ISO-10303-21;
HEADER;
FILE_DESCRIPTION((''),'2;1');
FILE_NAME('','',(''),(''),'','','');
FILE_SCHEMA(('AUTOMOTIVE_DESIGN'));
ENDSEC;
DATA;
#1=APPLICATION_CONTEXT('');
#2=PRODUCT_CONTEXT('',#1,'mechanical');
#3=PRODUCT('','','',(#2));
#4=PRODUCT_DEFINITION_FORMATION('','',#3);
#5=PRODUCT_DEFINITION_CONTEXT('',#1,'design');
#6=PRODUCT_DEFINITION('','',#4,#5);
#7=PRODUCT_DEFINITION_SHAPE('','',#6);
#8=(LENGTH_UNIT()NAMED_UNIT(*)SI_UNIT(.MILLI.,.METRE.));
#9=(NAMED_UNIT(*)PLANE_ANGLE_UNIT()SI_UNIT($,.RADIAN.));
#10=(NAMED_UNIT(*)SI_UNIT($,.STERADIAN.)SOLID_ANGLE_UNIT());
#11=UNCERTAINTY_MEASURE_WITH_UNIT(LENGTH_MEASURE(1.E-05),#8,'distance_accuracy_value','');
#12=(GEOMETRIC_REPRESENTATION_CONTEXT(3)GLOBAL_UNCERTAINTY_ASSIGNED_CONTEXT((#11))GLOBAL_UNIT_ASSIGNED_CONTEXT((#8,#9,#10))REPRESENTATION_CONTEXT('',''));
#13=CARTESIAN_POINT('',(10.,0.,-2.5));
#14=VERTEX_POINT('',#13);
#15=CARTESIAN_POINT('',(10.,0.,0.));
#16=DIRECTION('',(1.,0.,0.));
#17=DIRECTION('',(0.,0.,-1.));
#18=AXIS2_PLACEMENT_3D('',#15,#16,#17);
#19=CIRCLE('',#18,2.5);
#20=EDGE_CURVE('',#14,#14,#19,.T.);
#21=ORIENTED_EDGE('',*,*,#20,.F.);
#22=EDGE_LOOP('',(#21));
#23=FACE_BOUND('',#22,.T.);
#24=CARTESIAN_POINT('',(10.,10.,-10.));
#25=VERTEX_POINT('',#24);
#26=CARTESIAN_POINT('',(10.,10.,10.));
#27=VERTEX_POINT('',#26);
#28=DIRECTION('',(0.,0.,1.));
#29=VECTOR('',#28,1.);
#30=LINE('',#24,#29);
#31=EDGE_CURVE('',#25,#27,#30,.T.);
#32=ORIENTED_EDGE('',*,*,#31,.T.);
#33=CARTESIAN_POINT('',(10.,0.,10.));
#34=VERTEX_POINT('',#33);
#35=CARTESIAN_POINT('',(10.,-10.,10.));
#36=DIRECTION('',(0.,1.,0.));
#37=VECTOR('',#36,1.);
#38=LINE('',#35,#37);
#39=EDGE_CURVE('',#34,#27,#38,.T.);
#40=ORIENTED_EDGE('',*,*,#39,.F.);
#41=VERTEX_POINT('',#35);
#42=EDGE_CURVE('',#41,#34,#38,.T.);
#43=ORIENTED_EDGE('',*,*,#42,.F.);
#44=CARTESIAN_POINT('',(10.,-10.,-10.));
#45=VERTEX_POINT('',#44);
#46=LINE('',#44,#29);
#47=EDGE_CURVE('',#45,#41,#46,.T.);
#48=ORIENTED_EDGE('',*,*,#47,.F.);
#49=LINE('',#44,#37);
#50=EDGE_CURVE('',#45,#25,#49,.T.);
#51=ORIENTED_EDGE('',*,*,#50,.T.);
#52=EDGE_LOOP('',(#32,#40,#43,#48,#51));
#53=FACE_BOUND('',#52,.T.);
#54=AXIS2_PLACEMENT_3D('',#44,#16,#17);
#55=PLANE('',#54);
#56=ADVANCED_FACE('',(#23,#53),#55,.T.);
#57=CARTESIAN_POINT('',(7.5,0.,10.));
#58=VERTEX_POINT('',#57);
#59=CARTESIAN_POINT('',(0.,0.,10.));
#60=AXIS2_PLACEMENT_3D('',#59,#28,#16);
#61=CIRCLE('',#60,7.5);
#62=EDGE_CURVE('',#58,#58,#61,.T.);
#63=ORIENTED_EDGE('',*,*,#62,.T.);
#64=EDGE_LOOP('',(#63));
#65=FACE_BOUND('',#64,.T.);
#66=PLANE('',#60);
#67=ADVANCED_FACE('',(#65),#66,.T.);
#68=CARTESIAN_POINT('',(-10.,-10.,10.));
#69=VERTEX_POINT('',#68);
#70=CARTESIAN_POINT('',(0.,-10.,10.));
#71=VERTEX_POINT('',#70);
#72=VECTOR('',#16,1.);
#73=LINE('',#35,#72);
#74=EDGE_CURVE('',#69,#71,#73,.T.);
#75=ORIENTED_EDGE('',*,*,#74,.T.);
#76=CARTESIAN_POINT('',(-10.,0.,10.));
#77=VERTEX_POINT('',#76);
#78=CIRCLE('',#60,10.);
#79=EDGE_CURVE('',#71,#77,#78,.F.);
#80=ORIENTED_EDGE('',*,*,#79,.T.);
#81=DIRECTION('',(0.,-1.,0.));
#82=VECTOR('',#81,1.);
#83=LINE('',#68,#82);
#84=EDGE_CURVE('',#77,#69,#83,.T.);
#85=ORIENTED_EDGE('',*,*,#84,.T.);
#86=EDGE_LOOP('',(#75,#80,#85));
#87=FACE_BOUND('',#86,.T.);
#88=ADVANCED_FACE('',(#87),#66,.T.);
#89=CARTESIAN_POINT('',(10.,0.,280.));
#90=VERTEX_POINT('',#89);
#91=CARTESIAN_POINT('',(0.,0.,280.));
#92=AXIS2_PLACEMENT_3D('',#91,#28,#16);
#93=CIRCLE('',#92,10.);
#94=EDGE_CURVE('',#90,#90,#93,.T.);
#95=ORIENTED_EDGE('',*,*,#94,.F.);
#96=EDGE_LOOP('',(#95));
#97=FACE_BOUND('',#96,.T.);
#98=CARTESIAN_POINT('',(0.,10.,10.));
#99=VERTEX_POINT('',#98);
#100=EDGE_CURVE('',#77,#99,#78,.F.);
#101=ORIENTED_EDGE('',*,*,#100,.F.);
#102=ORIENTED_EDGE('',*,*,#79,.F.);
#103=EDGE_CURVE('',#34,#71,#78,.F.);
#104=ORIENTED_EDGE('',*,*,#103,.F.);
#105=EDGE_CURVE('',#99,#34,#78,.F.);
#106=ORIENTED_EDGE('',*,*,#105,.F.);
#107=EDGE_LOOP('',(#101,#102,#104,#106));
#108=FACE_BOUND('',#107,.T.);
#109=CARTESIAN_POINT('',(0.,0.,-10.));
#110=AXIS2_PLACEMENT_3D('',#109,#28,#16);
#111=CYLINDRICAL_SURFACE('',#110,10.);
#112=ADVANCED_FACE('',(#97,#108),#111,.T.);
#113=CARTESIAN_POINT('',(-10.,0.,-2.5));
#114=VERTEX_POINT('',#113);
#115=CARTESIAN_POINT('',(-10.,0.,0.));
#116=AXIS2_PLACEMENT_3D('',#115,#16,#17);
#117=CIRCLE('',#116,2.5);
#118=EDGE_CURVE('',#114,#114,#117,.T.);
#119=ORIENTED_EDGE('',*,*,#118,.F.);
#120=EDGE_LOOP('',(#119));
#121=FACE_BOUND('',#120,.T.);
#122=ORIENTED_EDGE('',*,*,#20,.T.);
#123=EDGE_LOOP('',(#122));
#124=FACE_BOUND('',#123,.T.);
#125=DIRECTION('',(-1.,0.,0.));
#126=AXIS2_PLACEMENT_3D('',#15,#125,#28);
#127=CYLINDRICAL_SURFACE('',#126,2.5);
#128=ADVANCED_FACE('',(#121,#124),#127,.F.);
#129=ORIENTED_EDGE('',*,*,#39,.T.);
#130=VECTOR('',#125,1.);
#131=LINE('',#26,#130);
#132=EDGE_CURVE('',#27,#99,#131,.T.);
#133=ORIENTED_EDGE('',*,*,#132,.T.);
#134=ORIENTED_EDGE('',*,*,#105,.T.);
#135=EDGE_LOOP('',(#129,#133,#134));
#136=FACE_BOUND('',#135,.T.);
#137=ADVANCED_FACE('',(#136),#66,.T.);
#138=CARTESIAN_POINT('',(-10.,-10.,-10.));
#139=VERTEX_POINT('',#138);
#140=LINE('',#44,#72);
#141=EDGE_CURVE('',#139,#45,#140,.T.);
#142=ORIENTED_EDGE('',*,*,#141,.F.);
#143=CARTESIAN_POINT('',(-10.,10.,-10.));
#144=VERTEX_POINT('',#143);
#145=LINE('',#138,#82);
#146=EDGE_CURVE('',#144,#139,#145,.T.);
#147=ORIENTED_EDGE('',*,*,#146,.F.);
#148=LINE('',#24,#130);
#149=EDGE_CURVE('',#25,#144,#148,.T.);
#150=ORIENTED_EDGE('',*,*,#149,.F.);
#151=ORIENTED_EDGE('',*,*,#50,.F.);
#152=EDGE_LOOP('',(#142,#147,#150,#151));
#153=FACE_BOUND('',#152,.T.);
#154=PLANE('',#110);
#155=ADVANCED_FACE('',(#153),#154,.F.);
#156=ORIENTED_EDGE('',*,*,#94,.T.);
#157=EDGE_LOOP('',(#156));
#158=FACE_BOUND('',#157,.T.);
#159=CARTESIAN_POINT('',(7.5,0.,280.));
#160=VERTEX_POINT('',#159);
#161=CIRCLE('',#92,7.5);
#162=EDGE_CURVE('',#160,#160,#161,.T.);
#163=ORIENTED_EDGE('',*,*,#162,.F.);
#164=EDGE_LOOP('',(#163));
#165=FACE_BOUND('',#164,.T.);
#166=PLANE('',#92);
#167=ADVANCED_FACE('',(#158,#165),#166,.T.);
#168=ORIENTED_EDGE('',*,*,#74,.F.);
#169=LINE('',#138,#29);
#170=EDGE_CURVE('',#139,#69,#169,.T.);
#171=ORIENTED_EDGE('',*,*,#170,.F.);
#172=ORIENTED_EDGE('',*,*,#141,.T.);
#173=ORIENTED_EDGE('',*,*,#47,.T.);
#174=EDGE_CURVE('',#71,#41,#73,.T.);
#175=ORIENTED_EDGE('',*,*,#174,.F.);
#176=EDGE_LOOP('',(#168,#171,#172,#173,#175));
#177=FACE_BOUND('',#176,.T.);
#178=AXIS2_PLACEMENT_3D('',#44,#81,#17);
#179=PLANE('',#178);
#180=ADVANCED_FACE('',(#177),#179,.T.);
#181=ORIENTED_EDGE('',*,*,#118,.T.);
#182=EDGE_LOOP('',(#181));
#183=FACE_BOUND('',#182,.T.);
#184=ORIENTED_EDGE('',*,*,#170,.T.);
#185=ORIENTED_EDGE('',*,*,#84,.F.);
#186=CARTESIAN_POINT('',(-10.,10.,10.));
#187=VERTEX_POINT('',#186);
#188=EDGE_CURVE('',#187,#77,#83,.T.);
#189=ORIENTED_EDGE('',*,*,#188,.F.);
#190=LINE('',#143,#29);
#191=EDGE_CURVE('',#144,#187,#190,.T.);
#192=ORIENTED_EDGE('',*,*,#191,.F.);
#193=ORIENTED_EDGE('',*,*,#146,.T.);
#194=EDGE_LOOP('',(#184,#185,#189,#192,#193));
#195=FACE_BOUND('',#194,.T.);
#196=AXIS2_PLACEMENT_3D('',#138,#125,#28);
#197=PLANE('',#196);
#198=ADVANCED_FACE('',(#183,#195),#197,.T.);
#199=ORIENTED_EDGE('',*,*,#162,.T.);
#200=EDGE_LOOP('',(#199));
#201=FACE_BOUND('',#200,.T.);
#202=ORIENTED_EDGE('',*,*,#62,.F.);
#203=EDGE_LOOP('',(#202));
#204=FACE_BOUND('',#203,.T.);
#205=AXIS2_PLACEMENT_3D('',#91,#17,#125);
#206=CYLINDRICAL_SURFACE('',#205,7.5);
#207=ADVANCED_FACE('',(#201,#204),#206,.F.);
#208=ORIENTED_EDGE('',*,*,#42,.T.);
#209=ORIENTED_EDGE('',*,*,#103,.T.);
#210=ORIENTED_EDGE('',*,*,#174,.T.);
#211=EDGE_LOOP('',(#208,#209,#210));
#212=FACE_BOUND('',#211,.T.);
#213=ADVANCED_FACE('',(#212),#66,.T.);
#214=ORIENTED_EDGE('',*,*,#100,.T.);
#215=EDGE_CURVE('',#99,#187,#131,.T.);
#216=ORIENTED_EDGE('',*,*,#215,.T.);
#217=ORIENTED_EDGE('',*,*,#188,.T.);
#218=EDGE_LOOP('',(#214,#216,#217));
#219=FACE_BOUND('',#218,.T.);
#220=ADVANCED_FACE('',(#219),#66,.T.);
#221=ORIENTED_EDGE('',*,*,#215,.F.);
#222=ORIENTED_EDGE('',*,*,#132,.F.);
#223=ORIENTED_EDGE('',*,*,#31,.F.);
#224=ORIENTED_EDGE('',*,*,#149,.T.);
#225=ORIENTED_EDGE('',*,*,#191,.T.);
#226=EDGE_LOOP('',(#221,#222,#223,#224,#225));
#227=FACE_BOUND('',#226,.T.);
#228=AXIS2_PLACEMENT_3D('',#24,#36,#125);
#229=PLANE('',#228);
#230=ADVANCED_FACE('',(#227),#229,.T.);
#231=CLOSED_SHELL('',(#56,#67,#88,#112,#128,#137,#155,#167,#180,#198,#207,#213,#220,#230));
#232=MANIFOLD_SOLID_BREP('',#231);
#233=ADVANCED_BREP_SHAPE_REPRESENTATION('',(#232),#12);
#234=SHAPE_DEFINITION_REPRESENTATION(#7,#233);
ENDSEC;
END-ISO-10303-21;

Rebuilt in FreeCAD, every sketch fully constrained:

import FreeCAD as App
import Part
import Sketcher
from FreeCAD import Vector
Q = App.Units.Quantity

doc = App.newDocument("Part")
body = doc.addObject("PartDesign::Body", "Body")

sketch1 = body.newObject("Sketcher::SketchObject", "Sketch")
sketch1.AttachmentSupport = (doc.getObject("XY_Plane"), [""])
sketch1.MapMode = "FlatFace"
sketch1.addGeometry(Part.Circle(Vector(0, 0, 0), Vector(0, 0, 1), 10), False)
sketch1.addConstraint([
    Sketcher.Constraint("Coincident", 0, 3, -1, 1),
    Sketcher.Constraint("Diameter", 0, Q("20 mm")),
])
pad1 = body.newObject("PartDesign::Pad", "Pad")
pad1.Profile = sketch1
pad1.Type = "TwoLengths"
pad1.Length = 280
pad1.Length2 = 10

sketch2 = body.newObject("Sketcher::SketchObject", "Sketch001")
sketch2.AttachmentSupport = (doc.getObject("XY_Plane"), [""])
sketch2.MapMode = "FlatFace"
sketch2.addGeometry(Part.Circle(Vector(0, 0, 0), Vector(0, 0, 1), 8), False)
sketch2.addConstraint([
    Sketcher.Constraint("Coincident", 0, 3, -1, 1),
    Sketcher.Constraint("Diameter", 0, Q("15 mm")),
])
pocket1 = body.newObject("PartDesign::Pocket", "Pocket")
pocket1.Profile = sketch2
pocket1.Length = 280
pocket1.Reversed = True

sketch3 = body.newObject("Sketcher::SketchObject", "Sketch002")
sketch3.AttachmentSupport = (doc.getObject("XY_Plane"), [""])
sketch3.MapMode = "FlatFace"
sketch3.addGeometry([
    Part.LineSegment(Vector(-10, 10, 0), Vector(-10, -10, 0)),
    Part.LineSegment(Vector(-10, -10, 0), Vector(10, -10, 0)),
    Part.LineSegment(Vector(10, -10, 0), Vector(10, 10, 0)),
    Part.LineSegment(Vector(10, 10, 0), Vector(-10, 10, 0)),
], False)
sketch3.addConstraint([
    Sketcher.Constraint("Coincident", 0, 2, 1, 1),
    Sketcher.Constraint("Coincident", 1, 2, 2, 1),
    Sketcher.Constraint("Coincident", 2, 2, 3, 1),
    Sketcher.Constraint("Coincident", 3, 2, 0, 1),
    Sketcher.Constraint("Vertical", 0),
    Sketcher.Constraint("Horizontal", 1),
    Sketcher.Constraint("Vertical", 2),
    Sketcher.Constraint("Horizontal", 3),
    Sketcher.Constraint("Symmetric", 0, 2, 2, 2, -1, 1),
    Sketcher.Constraint("Equal", 3, 0),
    Sketcher.Constraint("DistanceX", 1, 1, 1, 2, Q("20 mm")),
])
pad2 = body.newObject("PartDesign::Pad", "Pad001")
pad2.Profile = sketch3
pad2.Type = "TwoLengths"
pad2.Length = 10
pad2.Length2 = 10

sketch4 = body.newObject("Sketcher::SketchObject", "Sketch003")
sketch4.AttachmentSupport = (doc.getObject("YZ_Plane"), [""])
sketch4.MapMode = "FlatFace"
sketch4.addGeometry(Part.Circle(Vector(0, 0, 0), Vector(0, 0, 1), 2.5), False)
sketch4.addConstraint([
    Sketcher.Constraint("Coincident", 0, 3, -1, 1),
    Sketcher.Constraint("Diameter", 0, Q("5 mm")),
])
pocket2 = body.newObject("PartDesign::Pocket", "Pocket001")
pocket2.Profile = sketch4
pocket2.Type = "ThroughAll"
pocket2.Midplane = True

doc.recompute()
